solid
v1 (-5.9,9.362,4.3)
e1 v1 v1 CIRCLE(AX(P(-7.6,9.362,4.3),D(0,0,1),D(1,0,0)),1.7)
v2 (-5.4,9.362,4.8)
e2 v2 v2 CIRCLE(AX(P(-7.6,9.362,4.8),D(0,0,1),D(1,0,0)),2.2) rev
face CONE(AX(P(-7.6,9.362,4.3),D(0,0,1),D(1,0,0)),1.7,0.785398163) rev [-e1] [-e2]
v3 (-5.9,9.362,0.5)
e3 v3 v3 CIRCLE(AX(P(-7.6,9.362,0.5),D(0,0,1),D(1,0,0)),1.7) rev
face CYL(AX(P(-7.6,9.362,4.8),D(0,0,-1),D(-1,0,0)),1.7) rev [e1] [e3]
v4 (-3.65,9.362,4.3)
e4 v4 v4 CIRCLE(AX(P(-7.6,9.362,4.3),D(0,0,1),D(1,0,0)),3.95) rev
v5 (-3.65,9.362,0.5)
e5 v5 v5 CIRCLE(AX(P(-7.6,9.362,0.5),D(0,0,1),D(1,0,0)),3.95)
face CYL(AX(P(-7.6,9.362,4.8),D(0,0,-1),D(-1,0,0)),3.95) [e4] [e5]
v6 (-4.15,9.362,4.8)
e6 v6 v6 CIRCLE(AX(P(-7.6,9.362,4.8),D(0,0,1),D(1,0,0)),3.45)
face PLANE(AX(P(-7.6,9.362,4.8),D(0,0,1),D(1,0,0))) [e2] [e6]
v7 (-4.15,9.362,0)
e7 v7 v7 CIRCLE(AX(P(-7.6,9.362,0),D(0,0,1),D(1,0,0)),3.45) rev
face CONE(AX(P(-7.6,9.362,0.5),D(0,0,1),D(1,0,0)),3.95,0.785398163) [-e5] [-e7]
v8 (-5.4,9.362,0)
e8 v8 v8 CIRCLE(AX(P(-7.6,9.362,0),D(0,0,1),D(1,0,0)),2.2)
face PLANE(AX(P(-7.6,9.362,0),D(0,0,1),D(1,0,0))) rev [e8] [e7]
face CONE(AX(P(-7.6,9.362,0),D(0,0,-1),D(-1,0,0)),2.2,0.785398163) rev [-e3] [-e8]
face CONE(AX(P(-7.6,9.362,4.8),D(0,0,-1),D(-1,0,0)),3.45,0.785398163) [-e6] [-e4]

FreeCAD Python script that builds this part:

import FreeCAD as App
import Part
import Sketcher


def edges_at(feature, points):
    """Names of the edges that pass closest to the given points."""
    edges = feature.Shape.Edges
    near = lambda p: min(range(len(edges)), key=lambda i: edges[i].distToShape(Part.Vertex(*p))[0])
    return sorted({f"Edge{near(p) + 1}" for p in points})

doc = App.newDocument("Part")
body = doc.addObject("PartDesign::Body", "Body")

sketch1 = doc.addObject("Sketcher::SketchObject", "Sketch")
body.addObject(sketch1)
sketch1.AttachmentSupport = (doc.XY_Plane, [""])
sketch1.MapMode = "FlatFace"
sketch1.addGeometry([
    Part.Circle(App.Vector(-7.6, 9.362, 0), App.Vector(0, 0, 1), 3.95),
    Part.Circle(App.Vector(-7.6, 9.362, 0), App.Vector(0, 0, 1), 1.7),
], False)
sketch1.addConstraint([
    Sketcher.Constraint("Coincident", 1, 3, 0, 3),
    Sketcher.Constraint("Diameter", 0, 7.9),
    Sketcher.Constraint("Diameter", 1, 3.4),
    Sketcher.Constraint("DistanceX", 0, 3, -1, 1, 7.6),
    Sketcher.Constraint("DistanceY", -1, 1, 0, 3, 9.362),
])
pad1 = doc.addObject("PartDesign::Pad", "Pad")
body.addObject(pad1)
pad1.Profile = sketch1
pad1.Length = 4.8
doc.recompute()

chamfer = doc.addObject("PartDesign::Chamfer", "Chamfer")
body.addObject(chamfer)
chamfer.Base = (pad1, edges_at(pad1, [
    (-11.55, 9.362, 0),
    (-11.55, 9.362, 4.8),
    (-9.3, 9.362, 0),
    (-9.3, 9.362, 4.8),
]))
chamfer.Size = 0.5

doc.recompute()
